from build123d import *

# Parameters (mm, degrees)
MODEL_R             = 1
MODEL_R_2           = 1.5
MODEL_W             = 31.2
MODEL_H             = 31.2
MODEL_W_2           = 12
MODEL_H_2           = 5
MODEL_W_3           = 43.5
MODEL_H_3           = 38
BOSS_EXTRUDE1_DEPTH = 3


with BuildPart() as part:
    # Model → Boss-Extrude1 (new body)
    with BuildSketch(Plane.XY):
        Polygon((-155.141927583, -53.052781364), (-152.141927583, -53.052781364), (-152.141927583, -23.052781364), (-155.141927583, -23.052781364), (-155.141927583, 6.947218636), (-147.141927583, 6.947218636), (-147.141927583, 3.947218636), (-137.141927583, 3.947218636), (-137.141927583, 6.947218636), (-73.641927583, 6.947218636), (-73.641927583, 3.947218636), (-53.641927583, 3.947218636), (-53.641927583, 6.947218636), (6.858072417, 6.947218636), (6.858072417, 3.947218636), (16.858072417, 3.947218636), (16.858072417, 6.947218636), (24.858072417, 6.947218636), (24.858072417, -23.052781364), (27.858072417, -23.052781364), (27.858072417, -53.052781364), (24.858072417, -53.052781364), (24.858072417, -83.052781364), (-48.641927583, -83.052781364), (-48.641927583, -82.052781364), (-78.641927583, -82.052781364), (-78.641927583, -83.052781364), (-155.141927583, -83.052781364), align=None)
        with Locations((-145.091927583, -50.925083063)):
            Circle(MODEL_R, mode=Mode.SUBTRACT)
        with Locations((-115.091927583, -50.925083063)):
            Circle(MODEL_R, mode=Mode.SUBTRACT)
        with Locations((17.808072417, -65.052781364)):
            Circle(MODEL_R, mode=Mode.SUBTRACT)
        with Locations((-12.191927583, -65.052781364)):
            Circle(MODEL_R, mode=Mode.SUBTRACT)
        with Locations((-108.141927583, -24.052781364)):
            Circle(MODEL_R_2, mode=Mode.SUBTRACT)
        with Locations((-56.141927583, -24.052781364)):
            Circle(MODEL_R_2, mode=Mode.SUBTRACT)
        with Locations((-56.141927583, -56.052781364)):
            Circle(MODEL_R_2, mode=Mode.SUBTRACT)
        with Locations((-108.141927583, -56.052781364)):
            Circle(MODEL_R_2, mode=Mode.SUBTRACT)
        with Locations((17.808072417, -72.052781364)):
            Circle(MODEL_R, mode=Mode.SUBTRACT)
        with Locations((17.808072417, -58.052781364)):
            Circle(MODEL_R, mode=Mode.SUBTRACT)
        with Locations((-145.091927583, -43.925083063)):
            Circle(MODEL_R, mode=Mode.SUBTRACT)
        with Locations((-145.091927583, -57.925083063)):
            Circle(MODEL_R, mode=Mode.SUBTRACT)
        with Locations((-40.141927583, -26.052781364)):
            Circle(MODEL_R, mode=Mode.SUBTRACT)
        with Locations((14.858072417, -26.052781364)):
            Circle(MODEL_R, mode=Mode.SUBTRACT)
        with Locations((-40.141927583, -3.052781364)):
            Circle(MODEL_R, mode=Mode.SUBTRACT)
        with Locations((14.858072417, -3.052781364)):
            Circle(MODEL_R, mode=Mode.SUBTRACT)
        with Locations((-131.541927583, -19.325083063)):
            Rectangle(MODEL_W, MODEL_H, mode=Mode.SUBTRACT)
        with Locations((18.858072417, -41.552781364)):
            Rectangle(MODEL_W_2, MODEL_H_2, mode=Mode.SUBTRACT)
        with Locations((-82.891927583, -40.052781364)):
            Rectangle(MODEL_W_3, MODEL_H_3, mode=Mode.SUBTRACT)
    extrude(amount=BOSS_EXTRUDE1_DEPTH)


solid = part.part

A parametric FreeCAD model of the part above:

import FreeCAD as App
import Part
import Sketcher
from FreeCAD import Vector


def add_polygon(sketch, points):
    """Adds a closed chain of lines whose ends are joined by coincident constraints."""
    first, n = sketch.GeometryCount, len(points)
    for a, b in zip(points, points[1:] + points[:1]):
        sketch.addGeometry(Part.LineSegment(App.Vector(*a, 0), App.Vector(*b, 0)), False)
    for i in range(n):
        sketch.addConstraint(Sketcher.Constraint("Coincident", first + i, 2, first + (i + 1) % n, 1))

doc = App.newDocument("Part")
body = doc.addObject("PartDesign::Body", "Body")

# Sketch on XY plane
sketch1 = body.newObject("Sketcher::SketchObject", "Sketch")
sketch1.AttachmentSupport = (doc.getObject("XY_Plane"), [""])
sketch1.MapMode = "FlatFace"
add_polygon(sketch1, [(-152.141928, -53.052781), (-155.141928, -53.052781), (-155.141928, -83.052781), (-78.641928, -83.052781), (-78.641928, -82.052781), (-48.641928, -82.052781), (-48.641928, -83.052781), (24.858072, -83.052781), (24.858072, -53.052781), (27.858072, -53.052781), (27.858072, -23.052781), (24.858072, -23.052781), (24.858072, 6.947219), (16.858072, 6.947219), (16.858072, 3.947219), (6.858072, 3.947219), (6.858072, 6.947219), (-53.641928, 6.947219), (-53.641928, 3.947219), (-73.641928, 3.947219), (-73.641928, 6.947219), (-137.141928, 6.947219), (-137.141928, 3.947219), (-147.141928, 3.947219), (-147.141928, 6.947219), (-155.141928, 6.947219), (-155.141928, -23.052781), (-152.141928, -23.052781)])  # lines 0-27
sketch1.addGeometry(Part.Circle(Vector(17.808072, -72.052781, 0), Vector(0, 0, 1), 1), False)  # 28
sketch1.addGeometry(Part.Circle(Vector(17.808072, -65.052781, 0), Vector(0, 0, 1), 1), False)  # 29
sketch1.addGeometry(Part.Circle(Vector(-12.191928, -65.052781, 0), Vector(0, 0, 1), 1), False)  # 30
sketch1.addGeometry(Part.Circle(Vector(17.808072, -58.052781, 0), Vector(0, 0, 1), 1), False)  # 31
sketch1.addGeometry(Part.Circle(Vector(-56.141928, -56.052781, 0), Vector(0, 0, 1), 1.5), False)  # 32
add_polygon(sketch1, [(12.858072, -44.052781), (12.858072, -39.052781), (24.858072, -39.052781), (24.858072, -44.052781)])  # lines 33-36
sketch1.addGeometry(Part.Circle(Vector(-108.141928, -56.052781, 0), Vector(0, 0, 1), 1.5), False)  # 37
sketch1.addGeometry(Part.Circle(Vector(-145.091928, -57.925083, 0), Vector(0, 0, 1), 1), False)  # 38
add_polygon(sketch1, [(-104.641928, -59.052781), (-104.641928, -21.052781), (-61.141928, -21.052781), (-61.141928, -59.052781)])  # lines 39-42
sketch1.addGeometry(Part.Circle(Vector(-115.091928, -50.925083, 0), Vector(0, 0, 1), 1), False)  # 43
sketch1.addGeometry(Part.Circle(Vector(-145.091928, -50.925083, 0), Vector(0, 0, 1), 1), False)  # 44
sketch1.addGeometry(Part.Circle(Vector(-145.091928, -43.925083, 0), Vector(0, 0, 1), 1), False)  # 45
sketch1.addGeometry(Part.Circle(Vector(14.858072, -26.052781, 0), Vector(0, 0, 1), 1), False)  # 46
sketch1.addGeometry(Part.Circle(Vector(-40.141928, -26.052781, 0), Vector(0, 0, 1), 1), False)  # 47
sketch1.addGeometry(Part.Circle(Vector(-56.141928, -24.052781, 0), Vector(0, 0, 1), 1.5), False)  # 48
sketch1.addGeometry(Part.Circle(Vector(14.858072, -3.052781, 0), Vector(0, 0, 1), 1), False)  # 49
sketch1.addGeometry(Part.Circle(Vector(-40.141928, -3.052781, 0), Vector(0, 0, 1), 1), False)  # 50
sketch1.addGeometry(Part.Circle(Vector(-108.141928, -24.052781, 0), Vector(0, 0, 1), 1.5), False)  # 51
add_polygon(sketch1, [(-147.141928, -34.925083), (-147.141928, -3.725083), (-115.941928, -3.725083), (-115.941928, -34.925083)])  # lines 52-55
sketch1.addConstraint(Sketcher.Constraint("Horizontal", 0))
sketch1.addConstraint(Sketcher.Constraint("Vertical", 1))
sketch1.addConstraint(Sketcher.Constraint("Horizontal", 2))
sketch1.addConstraint(Sketcher.Constraint("Vertical", 3))
sketch1.addConstraint(Sketcher.Constraint("Horizontal", 4))
sketch1.addConstraint(Sketcher.Constraint("Vertical", 5))
sketch1.addConstraint(Sketcher.Constraint("Horizontal", 6))
sketch1.addConstraint(Sketcher.Constraint("Vertical", 7))
sketch1.addConstraint(Sketcher.Constraint("Horizontal", 8))
sketch1.addConstraint(Sketcher.Constraint("Vertical", 9))
sketch1.addConstraint(Sketcher.Constraint("Horizontal", 10))
sketch1.addConstraint(Sketcher.Constraint("Vertical", 11))
sketch1.addConstraint(Sketcher.Constraint("Horizontal", 12))
sketch1.addConstraint(Sketcher.Constraint("Vertical", 13))
sketch1.addConstraint(Sketcher.Constraint("Horizontal", 14))
sketch1.addConstraint(Sketcher.Constraint("Vertical", 15))
sketch1.addConstraint(Sketcher.Constraint("Horizontal", 16))
sketch1.addConstraint(Sketcher.Constraint("Vertical", 17))
sketch1.addConstraint(Sketcher.Constraint("Horizontal", 18))
sketch1.addConstraint(Sketcher.Constraint("Vertical", 19))
sketch1.addConstraint(Sketcher.Constraint("Horizontal", 20))
sketch1.addConstraint(Sketcher.Constraint("Vertical", 21))
sketch1.addConstraint(Sketcher.Constraint("Horizontal", 22))
sketch1.addConstraint(Sketcher.Constraint("Vertical", 23))
sketch1.addConstraint(Sketcher.Constraint("Horizontal", 24))
sketch1.addConstraint(Sketcher.Constraint("Vertical", 25))
sketch1.addConstraint(Sketcher.Constraint("Horizontal", 26))
sketch1.addConstraint(Sketcher.Constraint("Vertical", 27))
sketch1.addConstraint(Sketcher.Constraint("Vertical", 33))
sketch1.addConstraint(Sketcher.Constraint("Horizontal", 34))
sketch1.addConstraint(Sketcher.Constraint("Vertical", 35))
sketch1.addConstraint(Sketcher.Constraint("Horizontal", 36))
sketch1.addConstraint(Sketcher.Constraint("Vertical", 39))
sketch1.addConstraint(Sketcher.Constraint("Horizontal", 40))
sketch1.addConstraint(Sketcher.Constraint("Vertical", 41))
sketch1.addConstraint(Sketcher.Constraint("Horizontal", 42))
sketch1.addConstraint(Sketcher.Constraint("Vertical", 52))
sketch1.addConstraint(Sketcher.Constraint("Horizontal", 53))
sketch1.addConstraint(Sketcher.Constraint("Vertical", 54))
sketch1.addConstraint(Sketcher.Constraint("Horizontal", 55))
sketch1.addConstraint(Sketcher.Constraint("Equal", 28, 29))
sketch1.addConstraint(Sketcher.Constraint("Equal", 29, 30))
sketch1.addConstraint(Sketcher.Constraint("Equal", 30, 31))
sketch1.addConstraint(Sketcher.Constraint("Equal", 32, 37))
sketch1.addConstraint(Sketcher.Constraint("Equal", 31, 38))
sketch1.addConstraint(Sketcher.Constraint("Equal", 38, 43))
sketch1.addConstraint(Sketcher.Constraint("Equal", 43, 44))
sketch1.addConstraint(Sketcher.Constraint("Equal", 44, 45))
sketch1.addConstraint(Sketcher.Constraint("Equal", 45, 46))
sketch1.addConstraint(Sketcher.Constraint("Equal", 46, 47))
sketch1.addConstraint(Sketcher.Constraint("Equal", 37, 48))
sketch1.addConstraint(Sketcher.Constraint("Equal", 47, 49))
sketch1.addConstraint(Sketcher.Constraint("Equal", 49, 50))
sketch1.addConstraint(Sketcher.Constraint("Equal", 48, 51))
sketch1.addConstraint(Sketcher.Constraint("Horizontal", 29, 3, 30, 3))
sketch1.addConstraint(Sketcher.Constraint("Horizontal", 32, 3, 37, 3))
sketch1.addConstraint(Sketcher.Constraint("Horizontal", 43, 3, 44, 3))
sketch1.addConstraint(Sketcher.Constraint("Horizontal", 46, 3, 47, 3))
sketch1.addConstraint(Sketcher.Constraint("Horizontal", 49, 3, 50, 3))
sketch1.addConstraint(Sketcher.Constraint("Horizontal", 48, 3, 51, 3))
sketch1.addConstraint(Sketcher.Constraint("Horizontal", 2, 2, 5, 2))
sketch1.addConstraint(Sketcher.Constraint("Horizontal", 0, 2, 7, 2))
sketch1.addConstraint(Sketcher.Constraint("Horizontal", 12, 2, 15, 2))
sketch1.addConstraint(Sketcher.Constraint("Horizontal", 14, 2, 17, 2))
sketch1.addConstraint(Sketcher.Constraint("Horizontal", 16, 2, 19, 2))
sketch1.addConstraint(Sketcher.Constraint("Horizontal", 18, 2, 21, 2))
sketch1.addConstraint(Sketcher.Constraint("Horizontal", 20, 2, 23, 2))
sketch1.addConstraint(Sketcher.Constraint("Horizontal", 10, 2, 25, 2))
sketch1.addConstraint(Sketcher.Constraint("Vertical", 28, 3, 29, 3))
sketch1.addConstraint(Sketcher.Constraint("Vertical", 29, 3, 31, 3))
sketch1.addConstraint(Sketcher.Constraint("Vertical", 38, 3, 44, 3))
sketch1.addConstraint(Sketcher.Constraint("Vertical", 44, 3, 45, 3))
sketch1.addConstraint(Sketcher.Constraint("Vertical", 32, 3, 48, 3))
sketch1.addConstraint(Sketcher.Constraint("Vertical", 46, 3, 49, 3))
sketch1.addConstraint(Sketcher.Constraint("Vertical", 47, 3, 50, 3))
sketch1.addConstraint(Sketcher.Constraint("Vertical", 37, 3, 51, 3))
sketch1.addConstraint(Sketcher.Constraint("Vertical", 7, 2, 10, 2))
sketch1.addConstraint(Sketcher.Constraint("Vertical", 1, 2, 24, 2))
sketch1.addConstraint(Sketcher.Constraint("Vertical", 11, 2, 34, 2))
sketch1.addConstraint(Sketcher.Constraint("Vertical", 23, 2, 52, 2))
sketch1.addConstraint(Sketcher.Constraint("Equal", 0, 8))
sketch1.addConstraint(Sketcher.Constraint("Equal", 14, 22))
sketch1.addConstraint(Sketcher.Constraint("Equal", 12, 24))
sketch1.addConstraint(Sketcher.Constraint("Equal", 4, 1))
sketch1.addConstraint(Sketcher.Constraint("Equal", 7, 9))
sketch1.addConstraint(Sketcher.Constraint("Equal", 9, 11))
sketch1.addConstraint(Sketcher.Constraint("Equal", 26, 13))
sketch1.addConstraint(Sketcher.Constraint("Equal", 55, 52))
sketch1.addConstraint(Sketcher.Constraint("Diameter", 28, 2.0))
sketch1.addConstraint(Sketcher.Constraint("Diameter", 32, 3.0))
sketch1.addConstraint(Sketcher.Constraint("DistanceX", 0, 2, 0, 1, 3.0))
sketch1.addConstraint(Sketcher.Constraint("DistanceX", 4, 1, 4, 2, 30.0))
sketch1.addConstraint(Sketcher.Constraint("DistanceX", 12, 2, 12, 1, 8.0))
sketch1.addConstraint(Sketcher.Constraint("DistanceX", 14, 2, 14, 1, 10.0))
sketch1.addConstraint(Sketcher.Constraint("DistanceX", 18, 2, 18, 1, 20.0))
sketch1.addConstraint(Sketcher.Constraint("DistanceX", 34, 1, 34, 2, 12.0))
sketch1.addConstraint(Sketcher.Constraint("DistanceY", 3, 1, 3, 2, 1.0))
sketch1.addConstraint(Sketcher.Constraint("DistanceY", 33, 1, 33, 2, 5.0))
sketch1.addConstraint(Sketcher.Constraint("DistanceY", 39, 1, 39, 2, 38.0))
sketch1.addConstraint(Sketcher.Constraint("DistanceX", 2, 1, 2, 2, 76.5))
sketch1.addConstraint(Sketcher.Constraint("DistanceX", 6, 1, 6, 2, 73.5))
sketch1.addConstraint(Sketcher.Constraint("DistanceX", 16, 2, 16, 1, 60.5))
sketch1.addConstraint(Sketcher.Constraint("DistanceX", 40, 1, 40, 2, 43.5))
sketch1.addConstraint(Sketcher.Constraint("DistanceX", 53, 1, 53, 2, 31.2))
sketch1.addConstraint(Sketcher.Constraint("DistanceY", 28, 3, 29, 3, 7.0))
sketch1.addConstraint(Sketcher.Constraint("DistanceX", 30, 3, 29, 3, 30.0))
sketch1.addConstraint(Sketcher.Constraint("DistanceY", 29, 3, 31, 3, 7.0))
sketch1.addConstraint(Sketcher.Constraint("DistanceY", 30, 3, 32, 3, 9.0))
sketch1.addConstraint(Sketcher.Constraint("DistanceX", 37, 3, 32, 3, 52.0))
sketch1.addConstraint(Sketcher.Constraint("DistanceX", 38, 3, 43, 3, 30.0))
sketch1.addConstraint(Sketcher.Constraint("DistanceY", 38, 3, 43, 3, 7.0))
sketch1.addConstraint(Sketcher.Constraint("DistanceY", 44, 3, 45, 3, 7.0))
sketch1.addConstraint(Sketcher.Constraint("DistanceY", 31, 3, 46, 3, 32.0))
sketch1.addConstraint(Sketcher.Constraint("DistanceX", 32, 3, 46, 3, 71.0))
sketch1.addConstraint(Sketcher.Constraint("DistanceX", 32, 3, 47, 3, 16.0))
sketch1.addConstraint(Sketcher.Constraint("DistanceY", 47, 3, 48, 3, 2.0))
sketch1.addConstraint(Sketcher.Constraint("DistanceY", 46, 3, 49, 3, 23.0))
sketch1.addConstraint(Sketcher.Constraint("DistanceX", 0, 2, 37, 3, 47.0))
sketch1.addConstraint(Sketcher.Constraint("DistanceY", 37, 3, 0, 2, 3.0))
sketch1.addConstraint(Sketcher.Constraint("DistanceY", 33, 2, 46, 3, 13.0))
sketch1.addConstraint(Sketcher.Constraint("DistanceY", 51, 3, 39, 2, 3.0))
sketch1.addConstraint(Sketcher.Constraint("DistanceX", 39, 2, 18, 2, 31.0))
sketch1.addConstraint(Sketcher.Constraint("DistanceY", 43, 3, 54, 2, 16.0))
sketch1.addConstraint(Sketcher.Constraint("DistanceX", 38, 3, 30, 3, 132.9))
sketch1.addConstraint(Sketcher.Constraint("DistanceX", 32, 3, 30, 3, 43.95))
sketch1.addConstraint(Sketcher.Constraint("DistanceY", 38, 3, 37, 3, 1.872302))
sketch1.addConstraint(Sketcher.Constraint("DistanceY", 28, 3, -1, 1, 72.052781))
sketch1.addConstraint(Sketcher.Constraint("DistanceX", -1, 1, 28, 3, 17.808072))
pad1 = body.newObject("PartDesign::Pad", "Pad")
pad1.Profile = sketch1
pad1.Length = 3

doc.recompute()
